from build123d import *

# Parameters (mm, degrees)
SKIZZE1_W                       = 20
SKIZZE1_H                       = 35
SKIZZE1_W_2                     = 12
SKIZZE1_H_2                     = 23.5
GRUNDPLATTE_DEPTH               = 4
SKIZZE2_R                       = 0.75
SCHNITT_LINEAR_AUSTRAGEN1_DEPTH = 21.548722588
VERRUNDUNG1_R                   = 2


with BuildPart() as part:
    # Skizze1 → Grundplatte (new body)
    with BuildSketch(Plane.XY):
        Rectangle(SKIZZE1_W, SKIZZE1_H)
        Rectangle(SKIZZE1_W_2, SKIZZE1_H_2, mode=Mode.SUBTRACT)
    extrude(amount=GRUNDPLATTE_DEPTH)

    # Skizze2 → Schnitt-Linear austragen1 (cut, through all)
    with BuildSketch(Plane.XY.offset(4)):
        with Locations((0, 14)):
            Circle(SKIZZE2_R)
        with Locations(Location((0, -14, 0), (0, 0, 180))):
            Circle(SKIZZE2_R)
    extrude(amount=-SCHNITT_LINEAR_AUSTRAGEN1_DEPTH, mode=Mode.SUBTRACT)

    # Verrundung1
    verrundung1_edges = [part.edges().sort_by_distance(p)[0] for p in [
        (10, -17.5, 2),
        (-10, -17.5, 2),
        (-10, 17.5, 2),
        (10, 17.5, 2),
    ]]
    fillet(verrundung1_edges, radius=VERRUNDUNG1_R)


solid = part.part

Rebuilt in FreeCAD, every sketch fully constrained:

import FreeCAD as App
import Part
import Sketcher
from FreeCAD import Vector


def edges_at(feature, points):
    """Names of the edges that pass closest to the given points."""
    edges = feature.Shape.Edges
    near = lambda p: min(range(len(edges)), key=lambda i: edges[i].distToShape(Part.Vertex(*p))[0])
    return sorted({f"Edge{near(p) + 1}" for p in points})


def add_polygon(sketch, points):
    """Adds a closed chain of lines whose ends are joined by coincident constraints."""
    first, n = sketch.GeometryCount, len(points)
    for a, b in zip(points, points[1:] + points[:1]):
        sketch.addGeometry(Part.LineSegment(App.Vector(*a, 0), App.Vector(*b, 0)), False)
    for i in range(n):
        sketch.addConstraint(Sketcher.Constraint("Coincident", first + i, 2, first + (i + 1) % n, 1))

doc = App.newDocument("Part")
body = doc.addObject("PartDesign::Body", "Body")

# Sketch on XY plane
sketch1 = doc.addObject("Sketcher::SketchObject", "Sketch")
body.addObject(sketch1)
sketch1.AttachmentSupport = (doc.XY_Plane, [""])
sketch1.MapMode = "FlatFace"
add_polygon(sketch1, [(-10, 17.5), (-10, -17.5), (10, -17.5), (10, 17.5)])  # lines 0-3
add_polygon(sketch1, [(6, -11.75), (-6, -11.75), (-6, 11.75), (6, 11.75)])  # lines 4-7
sketch1.addConstraint(Sketcher.Constraint("Vertical", 0))
sketch1.addConstraint(Sketcher.Constraint("Horizontal", 1))
sketch1.addConstraint(Sketcher.Constraint("Vertical", 2))
sketch1.addConstraint(Sketcher.Constraint("Horizontal", 3))
sketch1.addConstraint(Sketcher.Constraint("Horizontal", 4))
sketch1.addConstraint(Sketcher.Constraint("Vertical", 5))
sketch1.addConstraint(Sketcher.Constraint("Horizontal", 6))
sketch1.addConstraint(Sketcher.Constraint("Vertical", 7))
sketch1.addConstraint(Sketcher.Constraint("Symmetric", 0, 2, 2, 2, -1, 1))
sketch1.addConstraint(Sketcher.Constraint("Symmetric", 4, 2, 6, 2, -1, 1))
sketch1.addConstraint(Sketcher.Constraint("DistanceX", 1, 1, 1, 2, 20.0))
sketch1.addConstraint(Sketcher.Constraint("DistanceX", 4, 2, 4, 1, 12.0))
sketch1.addConstraint(Sketcher.Constraint("DistanceY", 0, 2, 0, 1, 35.0))
sketch1.addConstraint(Sketcher.Constraint("DistanceY", 5, 1, 5, 2, 23.5))
pad1 = doc.addObject("PartDesign::Pad", "Pad")
body.addObject(pad1)
pad1.Profile = sketch1
pad1.Length = 4

# Sketch on XY plane
sketch2 = doc.addObject("Sketcher::SketchObject", "Sketch001")
body.addObject(sketch2)
sketch2.AttachmentSupport = (doc.XY_Plane, [""])
sketch2.MapMode = "FlatFace"
sketch2.AttachmentOffset = App.Placement(Vector(0, 0, 4), App.Rotation())
sketch2.addGeometry(Part.Circle(Vector(0, 14, 0), Vector(0, 0, 1), 0.75), False)
sketch2.addGeometry(Part.Circle(Vector(0, -14, 0), Vector(0, 0, 1), 0.75), False)
sketch2.addConstraint(Sketcher.Constraint("Equal", 0, 1))
sketch2.addConstraint(Sketcher.Constraint("Symmetric", 0, 3, 1, 3, -1, 1))
sketch2.addConstraint(Sketcher.Constraint("PointOnObject", 0, 3, -2))
sketch2.addConstraint(Sketcher.Constraint("Diameter", 0, 1.5))
sketch2.addConstraint(Sketcher.Constraint("DistanceY", -1, 1, 0, 3, 14.0))
pocket1 = doc.addObject("PartDesign::Pocket", "Pocket")
body.addObject(pocket1)
pocket1.Profile = sketch2
pocket1.Type = "ThroughAll"
doc.recompute()

fillet = doc.addObject("PartDesign::Fillet", "Fillet")
body.addObject(fillet)
fillet.Base = (pocket1, edges_at(pocket1, [
    (10, -17.5, 2),
    (-10, -17.5, 2),
    (-10, 17.5, 2),
    (10, 17.5, 2),
]))
fillet.Radius = 2

doc.recompute()
